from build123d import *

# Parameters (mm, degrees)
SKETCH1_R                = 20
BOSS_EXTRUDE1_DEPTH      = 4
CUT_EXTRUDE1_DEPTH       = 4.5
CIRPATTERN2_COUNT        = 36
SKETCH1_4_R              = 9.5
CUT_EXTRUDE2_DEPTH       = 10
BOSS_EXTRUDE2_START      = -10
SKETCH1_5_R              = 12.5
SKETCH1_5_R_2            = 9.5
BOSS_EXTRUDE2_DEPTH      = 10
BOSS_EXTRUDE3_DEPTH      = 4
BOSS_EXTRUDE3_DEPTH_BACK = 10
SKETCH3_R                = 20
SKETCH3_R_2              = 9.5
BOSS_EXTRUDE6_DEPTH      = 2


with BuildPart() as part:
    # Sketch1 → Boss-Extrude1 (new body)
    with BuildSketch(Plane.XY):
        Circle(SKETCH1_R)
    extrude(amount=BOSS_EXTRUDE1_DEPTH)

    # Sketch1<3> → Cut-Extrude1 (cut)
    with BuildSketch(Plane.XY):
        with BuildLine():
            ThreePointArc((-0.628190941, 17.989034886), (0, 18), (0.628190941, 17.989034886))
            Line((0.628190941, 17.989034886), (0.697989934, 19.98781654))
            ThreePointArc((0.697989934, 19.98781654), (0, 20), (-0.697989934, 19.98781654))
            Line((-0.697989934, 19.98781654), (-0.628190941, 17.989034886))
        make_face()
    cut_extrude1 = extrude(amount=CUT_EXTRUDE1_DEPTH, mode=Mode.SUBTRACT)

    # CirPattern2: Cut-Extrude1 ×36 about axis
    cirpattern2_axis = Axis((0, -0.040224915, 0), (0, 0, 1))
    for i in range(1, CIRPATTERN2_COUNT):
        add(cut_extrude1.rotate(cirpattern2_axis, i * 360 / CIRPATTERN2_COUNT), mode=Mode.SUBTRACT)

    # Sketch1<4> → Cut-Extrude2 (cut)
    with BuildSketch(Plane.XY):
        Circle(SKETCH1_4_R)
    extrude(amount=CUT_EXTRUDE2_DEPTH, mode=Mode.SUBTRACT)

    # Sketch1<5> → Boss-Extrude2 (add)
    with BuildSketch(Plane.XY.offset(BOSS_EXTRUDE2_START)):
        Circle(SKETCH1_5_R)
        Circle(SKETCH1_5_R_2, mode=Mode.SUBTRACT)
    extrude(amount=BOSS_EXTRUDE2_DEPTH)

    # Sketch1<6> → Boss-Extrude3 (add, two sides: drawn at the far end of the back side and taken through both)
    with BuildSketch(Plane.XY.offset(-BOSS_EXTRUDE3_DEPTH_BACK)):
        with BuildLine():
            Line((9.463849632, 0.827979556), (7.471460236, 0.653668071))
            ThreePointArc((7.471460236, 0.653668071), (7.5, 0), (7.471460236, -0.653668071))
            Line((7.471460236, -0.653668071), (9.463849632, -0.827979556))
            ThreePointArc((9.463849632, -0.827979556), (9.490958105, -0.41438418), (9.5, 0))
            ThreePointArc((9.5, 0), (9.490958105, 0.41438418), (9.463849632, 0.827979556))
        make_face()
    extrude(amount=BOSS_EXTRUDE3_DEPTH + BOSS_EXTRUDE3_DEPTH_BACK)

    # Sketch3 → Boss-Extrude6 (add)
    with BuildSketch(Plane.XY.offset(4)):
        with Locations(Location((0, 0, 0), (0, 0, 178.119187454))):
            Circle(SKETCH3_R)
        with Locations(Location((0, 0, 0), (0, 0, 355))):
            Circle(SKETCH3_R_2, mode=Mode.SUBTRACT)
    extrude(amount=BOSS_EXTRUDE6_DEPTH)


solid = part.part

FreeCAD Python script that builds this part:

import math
import FreeCAD as App
import Part
import Sketcher

V = App.Vector
Q = App.Units.Quantity

doc = App.newDocument("Part")
body = doc.addObject("PartDesign::Body", "Body")

sketch1 = body.newObject("Sketcher::SketchObject", "Sketch")
sketch1.AttachmentSupport = (doc.getObject("XY_Plane"), [""])
sketch1.MapMode = "FlatFace"
sketch1.addGeometry(Part.Circle(V(0, 0, 0), V(0, 0, 1), 20), False)
sketch1.addConstraint([
    Sketcher.Constraint("Coincident", 0, 3, -1, 1),
    Sketcher.Constraint("Diameter", 0, 40.0),
])
pad1 = body.newObject("PartDesign::Pad", "Pad")
pad1.Profile = sketch1
pad1.Length = 4

sketch2 = body.newObject("Sketcher::SketchObject", "Sketch001")
sketch2.AttachmentSupport = (doc.getObject("XY_Plane"), [""])
sketch2.MapMode = "FlatFace"
sketch2.addGeometry([
    Part.ArcOfCircle(Part.Circle(V(0, 0.000001, 0), V(0, 0, 1), 17.999999), math.radians(88), math.radians(92)),
    Part.LineSegment(V(0.628191, 17.989035, 0), V(0.69799, 19.987817, 0)),
    Part.ArcOfCircle(Part.Circle(V(0, 0.000001, 0), V(0, 0, 1), 19.999999), math.radians(88), math.radians(92)),
    Part.LineSegment(V(-0.69799, 19.987817, 0), V(-0.628191, 17.989035, 0)),
], False)
sketch2.addConstraint([
    Sketcher.Constraint("Coincident", 0, 1, 1, 1),
    Sketcher.Constraint("Coincident", 1, 2, 2, 1),
    Sketcher.Constraint("Coincident", 2, 2, 3, 1),
    Sketcher.Constraint("Coincident", 3, 2, 0, 2),
    Sketcher.Constraint("Coincident", 0, 3, -1, 1),
    Sketcher.Constraint("Coincident", 2, 3, -1, 1),
    Sketcher.Constraint("Horizontal", 1, 2, 2, 2),
    Sketcher.Constraint("Horizontal", 0, 1, 3, 2),
    Sketcher.Constraint("Radius", 0, 17.999999),
    Sketcher.Constraint("Radius", 2, 19.999999),
    Sketcher.Constraint("Angle", 1, Q("88 deg")),
    Sketcher.Constraint("DistanceX", -1, 1, 0, 1, 0.628191),
])
pocket1 = body.newObject("PartDesign::Pocket", "Pocket")
pocket1.Profile = sketch2
pocket1.Length = 4.5
pocket1.Reversed = True
doc.recompute()

datumline = body.newObject("PartDesign::Line", "DatumLine")
datumline.Placement = App.Placement(V(0, -0.040225, 0), App.Rotation(V(0, 0, 1), V(0, 0, 1)))
polarpattern = body.newObject("PartDesign::PolarPattern", "PolarPattern")
polarpattern.Originals = [pocket1]
polarpattern.Axis = (datumline, [""])
polarpattern.Angle = 360
polarpattern.Occurrences = 36
body.Tip = polarpattern

sketch3 = body.newObject("Sketcher::SketchObject", "Sketch002")
sketch3.AttachmentSupport = (doc.getObject("XY_Plane"), [""])
sketch3.MapMode = "FlatFace"
sketch3.addGeometry(Part.Circle(V(0, 0, 0), V(0, 0, 1), 9.5), False)
sketch3.addConstraint([
    Sketcher.Constraint("Coincident", 0, 3, -1, 1),
    Sketcher.Constraint("Diameter", 0, 19.0),
])
pocket2 = body.newObject("PartDesign::Pocket", "Pocket001")
pocket2.Profile = sketch3
pocket2.Length = 10
pocket2.Reversed = True

sketch4 = body.newObject("Sketcher::SketchObject", "Sketch003")
sketch4.AttachmentSupport = (doc.getObject("XY_Plane"), [""])
sketch4.MapMode = "FlatFace"
sketch4.AttachmentOffset = App.Placement(V(0, 0, -10), App.Rotation())
sketch4.addGeometry([
    Part.Circle(V(0, 0, 0), V(0, 0, 1), 12.5),
    Part.Circle(V(0, 0, 0), V(0, 0, 1), 9.5),
], False)
sketch4.addConstraint([
    Sketcher.Constraint("Coincident", 0, 3, -1, 1),
    Sketcher.Constraint("Coincident", 1, 3, -1, 1),
    Sketcher.Constraint("Diameter", 0, 25.0),
    Sketcher.Constraint("Diameter", 1, 19.0),
])
pad2 = body.newObject("PartDesign::Pad", "Pad001")
pad2.Profile = sketch4
pad2.Length = 10

sketch5 = body.newObject("Sketcher::SketchObject", "Sketch004")
sketch5.AttachmentSupport = (doc.getObject("XY_Plane"), [""])
sketch5.MapMode = "FlatFace"
sketch5.addGeometry([
    Part.LineSegment(V(9.46385, 0.82798, 0), V(7.47146, 0.653668, 0)),
    Part.ArcOfCircle(Part.Circle(V(0, 0, 0), V(0, 0, 1), 7.5), math.radians(-5), math.radians(5)),
    Part.LineSegment(V(7.47146, -0.653668, 0), V(9.46385, -0.82798, 0)),
    Part.ArcOfCircle(Part.Circle(V(0, 0, 0), V(0, 0, 1), 9.5), math.radians(-5), math.radians(0)),
    Part.ArcOfCircle(Part.Circle(V(0, 0, 0), V(0, 0, 1), 9.5), math.radians(0), math.radians(5)),
], False)
sketch5.addConstraint([
    Sketcher.Constraint("Coincident", 0, 2, 1, 2),
    Sketcher.Constraint("Coincident", 1, 1, 2, 1),
    Sketcher.Constraint("Coincident", 2, 2, 3, 1),
    Sketcher.Constraint("Tangent", 3, 2, 4, 1),
    Sketcher.Constraint("Coincident", 4, 2, 0, 1),
    Sketcher.Constraint("Coincident", 1, 3, -1, 1),
    Sketcher.Constraint("Coincident", 3, 3, -1, 1),
    Sketcher.Constraint("Equal", 3, 4),
    Sketcher.Constraint("PointOnObject", 3, 2, -1),
    Sketcher.Constraint("Vertical", 0, 2, 1, 1),
    Sketcher.Constraint("Vertical", 2, 2, 4, 2),
    Sketcher.Constraint("Radius", 1, 7.5),
    Sketcher.Constraint("Radius", 3, 9.5),
    Sketcher.Constraint("Angle", 0, Q("-175 deg")),
    Sketcher.Constraint("DistanceX", -1, 1, 0, 2, 7.47146),
])
pad3 = body.newObject("PartDesign::Pad", "Pad002")
pad3.Profile = sketch5
pad3.Type = "TwoLengths"
pad3.Length = 4
pad3.Length2 = 10

sketch6 = body.newObject("Sketcher::SketchObject", "Sketch005")
sketch6.AttachmentSupport = (doc.getObject("XY_Plane"), [""])
sketch6.MapMode = "FlatFace"
sketch6.AttachmentOffset = App.Placement(V(0, 0, 4), App.Rotation())
sketch6.addGeometry([
    Part.Circle(V(0, 0, 0), V(0, 0, 1), 20),
    Part.Circle(V(0, 0, 0), V(0, 0, 1), 9.5),
], False)
sketch6.addConstraint([
    Sketcher.Constraint("Coincident", 0, 3, -1, 1),
    Sketcher.Constraint("Coincident", 1, 3, -1, 1),
    Sketcher.Constraint("Diameter", 0, 40.0),
    Sketcher.Constraint("Diameter", 1, 19.0),
])
pad4 = body.newObject("PartDesign::Pad", "Pad003")
pad4.Profile = sketch6
pad4.Length = 2

doc.recompute()
